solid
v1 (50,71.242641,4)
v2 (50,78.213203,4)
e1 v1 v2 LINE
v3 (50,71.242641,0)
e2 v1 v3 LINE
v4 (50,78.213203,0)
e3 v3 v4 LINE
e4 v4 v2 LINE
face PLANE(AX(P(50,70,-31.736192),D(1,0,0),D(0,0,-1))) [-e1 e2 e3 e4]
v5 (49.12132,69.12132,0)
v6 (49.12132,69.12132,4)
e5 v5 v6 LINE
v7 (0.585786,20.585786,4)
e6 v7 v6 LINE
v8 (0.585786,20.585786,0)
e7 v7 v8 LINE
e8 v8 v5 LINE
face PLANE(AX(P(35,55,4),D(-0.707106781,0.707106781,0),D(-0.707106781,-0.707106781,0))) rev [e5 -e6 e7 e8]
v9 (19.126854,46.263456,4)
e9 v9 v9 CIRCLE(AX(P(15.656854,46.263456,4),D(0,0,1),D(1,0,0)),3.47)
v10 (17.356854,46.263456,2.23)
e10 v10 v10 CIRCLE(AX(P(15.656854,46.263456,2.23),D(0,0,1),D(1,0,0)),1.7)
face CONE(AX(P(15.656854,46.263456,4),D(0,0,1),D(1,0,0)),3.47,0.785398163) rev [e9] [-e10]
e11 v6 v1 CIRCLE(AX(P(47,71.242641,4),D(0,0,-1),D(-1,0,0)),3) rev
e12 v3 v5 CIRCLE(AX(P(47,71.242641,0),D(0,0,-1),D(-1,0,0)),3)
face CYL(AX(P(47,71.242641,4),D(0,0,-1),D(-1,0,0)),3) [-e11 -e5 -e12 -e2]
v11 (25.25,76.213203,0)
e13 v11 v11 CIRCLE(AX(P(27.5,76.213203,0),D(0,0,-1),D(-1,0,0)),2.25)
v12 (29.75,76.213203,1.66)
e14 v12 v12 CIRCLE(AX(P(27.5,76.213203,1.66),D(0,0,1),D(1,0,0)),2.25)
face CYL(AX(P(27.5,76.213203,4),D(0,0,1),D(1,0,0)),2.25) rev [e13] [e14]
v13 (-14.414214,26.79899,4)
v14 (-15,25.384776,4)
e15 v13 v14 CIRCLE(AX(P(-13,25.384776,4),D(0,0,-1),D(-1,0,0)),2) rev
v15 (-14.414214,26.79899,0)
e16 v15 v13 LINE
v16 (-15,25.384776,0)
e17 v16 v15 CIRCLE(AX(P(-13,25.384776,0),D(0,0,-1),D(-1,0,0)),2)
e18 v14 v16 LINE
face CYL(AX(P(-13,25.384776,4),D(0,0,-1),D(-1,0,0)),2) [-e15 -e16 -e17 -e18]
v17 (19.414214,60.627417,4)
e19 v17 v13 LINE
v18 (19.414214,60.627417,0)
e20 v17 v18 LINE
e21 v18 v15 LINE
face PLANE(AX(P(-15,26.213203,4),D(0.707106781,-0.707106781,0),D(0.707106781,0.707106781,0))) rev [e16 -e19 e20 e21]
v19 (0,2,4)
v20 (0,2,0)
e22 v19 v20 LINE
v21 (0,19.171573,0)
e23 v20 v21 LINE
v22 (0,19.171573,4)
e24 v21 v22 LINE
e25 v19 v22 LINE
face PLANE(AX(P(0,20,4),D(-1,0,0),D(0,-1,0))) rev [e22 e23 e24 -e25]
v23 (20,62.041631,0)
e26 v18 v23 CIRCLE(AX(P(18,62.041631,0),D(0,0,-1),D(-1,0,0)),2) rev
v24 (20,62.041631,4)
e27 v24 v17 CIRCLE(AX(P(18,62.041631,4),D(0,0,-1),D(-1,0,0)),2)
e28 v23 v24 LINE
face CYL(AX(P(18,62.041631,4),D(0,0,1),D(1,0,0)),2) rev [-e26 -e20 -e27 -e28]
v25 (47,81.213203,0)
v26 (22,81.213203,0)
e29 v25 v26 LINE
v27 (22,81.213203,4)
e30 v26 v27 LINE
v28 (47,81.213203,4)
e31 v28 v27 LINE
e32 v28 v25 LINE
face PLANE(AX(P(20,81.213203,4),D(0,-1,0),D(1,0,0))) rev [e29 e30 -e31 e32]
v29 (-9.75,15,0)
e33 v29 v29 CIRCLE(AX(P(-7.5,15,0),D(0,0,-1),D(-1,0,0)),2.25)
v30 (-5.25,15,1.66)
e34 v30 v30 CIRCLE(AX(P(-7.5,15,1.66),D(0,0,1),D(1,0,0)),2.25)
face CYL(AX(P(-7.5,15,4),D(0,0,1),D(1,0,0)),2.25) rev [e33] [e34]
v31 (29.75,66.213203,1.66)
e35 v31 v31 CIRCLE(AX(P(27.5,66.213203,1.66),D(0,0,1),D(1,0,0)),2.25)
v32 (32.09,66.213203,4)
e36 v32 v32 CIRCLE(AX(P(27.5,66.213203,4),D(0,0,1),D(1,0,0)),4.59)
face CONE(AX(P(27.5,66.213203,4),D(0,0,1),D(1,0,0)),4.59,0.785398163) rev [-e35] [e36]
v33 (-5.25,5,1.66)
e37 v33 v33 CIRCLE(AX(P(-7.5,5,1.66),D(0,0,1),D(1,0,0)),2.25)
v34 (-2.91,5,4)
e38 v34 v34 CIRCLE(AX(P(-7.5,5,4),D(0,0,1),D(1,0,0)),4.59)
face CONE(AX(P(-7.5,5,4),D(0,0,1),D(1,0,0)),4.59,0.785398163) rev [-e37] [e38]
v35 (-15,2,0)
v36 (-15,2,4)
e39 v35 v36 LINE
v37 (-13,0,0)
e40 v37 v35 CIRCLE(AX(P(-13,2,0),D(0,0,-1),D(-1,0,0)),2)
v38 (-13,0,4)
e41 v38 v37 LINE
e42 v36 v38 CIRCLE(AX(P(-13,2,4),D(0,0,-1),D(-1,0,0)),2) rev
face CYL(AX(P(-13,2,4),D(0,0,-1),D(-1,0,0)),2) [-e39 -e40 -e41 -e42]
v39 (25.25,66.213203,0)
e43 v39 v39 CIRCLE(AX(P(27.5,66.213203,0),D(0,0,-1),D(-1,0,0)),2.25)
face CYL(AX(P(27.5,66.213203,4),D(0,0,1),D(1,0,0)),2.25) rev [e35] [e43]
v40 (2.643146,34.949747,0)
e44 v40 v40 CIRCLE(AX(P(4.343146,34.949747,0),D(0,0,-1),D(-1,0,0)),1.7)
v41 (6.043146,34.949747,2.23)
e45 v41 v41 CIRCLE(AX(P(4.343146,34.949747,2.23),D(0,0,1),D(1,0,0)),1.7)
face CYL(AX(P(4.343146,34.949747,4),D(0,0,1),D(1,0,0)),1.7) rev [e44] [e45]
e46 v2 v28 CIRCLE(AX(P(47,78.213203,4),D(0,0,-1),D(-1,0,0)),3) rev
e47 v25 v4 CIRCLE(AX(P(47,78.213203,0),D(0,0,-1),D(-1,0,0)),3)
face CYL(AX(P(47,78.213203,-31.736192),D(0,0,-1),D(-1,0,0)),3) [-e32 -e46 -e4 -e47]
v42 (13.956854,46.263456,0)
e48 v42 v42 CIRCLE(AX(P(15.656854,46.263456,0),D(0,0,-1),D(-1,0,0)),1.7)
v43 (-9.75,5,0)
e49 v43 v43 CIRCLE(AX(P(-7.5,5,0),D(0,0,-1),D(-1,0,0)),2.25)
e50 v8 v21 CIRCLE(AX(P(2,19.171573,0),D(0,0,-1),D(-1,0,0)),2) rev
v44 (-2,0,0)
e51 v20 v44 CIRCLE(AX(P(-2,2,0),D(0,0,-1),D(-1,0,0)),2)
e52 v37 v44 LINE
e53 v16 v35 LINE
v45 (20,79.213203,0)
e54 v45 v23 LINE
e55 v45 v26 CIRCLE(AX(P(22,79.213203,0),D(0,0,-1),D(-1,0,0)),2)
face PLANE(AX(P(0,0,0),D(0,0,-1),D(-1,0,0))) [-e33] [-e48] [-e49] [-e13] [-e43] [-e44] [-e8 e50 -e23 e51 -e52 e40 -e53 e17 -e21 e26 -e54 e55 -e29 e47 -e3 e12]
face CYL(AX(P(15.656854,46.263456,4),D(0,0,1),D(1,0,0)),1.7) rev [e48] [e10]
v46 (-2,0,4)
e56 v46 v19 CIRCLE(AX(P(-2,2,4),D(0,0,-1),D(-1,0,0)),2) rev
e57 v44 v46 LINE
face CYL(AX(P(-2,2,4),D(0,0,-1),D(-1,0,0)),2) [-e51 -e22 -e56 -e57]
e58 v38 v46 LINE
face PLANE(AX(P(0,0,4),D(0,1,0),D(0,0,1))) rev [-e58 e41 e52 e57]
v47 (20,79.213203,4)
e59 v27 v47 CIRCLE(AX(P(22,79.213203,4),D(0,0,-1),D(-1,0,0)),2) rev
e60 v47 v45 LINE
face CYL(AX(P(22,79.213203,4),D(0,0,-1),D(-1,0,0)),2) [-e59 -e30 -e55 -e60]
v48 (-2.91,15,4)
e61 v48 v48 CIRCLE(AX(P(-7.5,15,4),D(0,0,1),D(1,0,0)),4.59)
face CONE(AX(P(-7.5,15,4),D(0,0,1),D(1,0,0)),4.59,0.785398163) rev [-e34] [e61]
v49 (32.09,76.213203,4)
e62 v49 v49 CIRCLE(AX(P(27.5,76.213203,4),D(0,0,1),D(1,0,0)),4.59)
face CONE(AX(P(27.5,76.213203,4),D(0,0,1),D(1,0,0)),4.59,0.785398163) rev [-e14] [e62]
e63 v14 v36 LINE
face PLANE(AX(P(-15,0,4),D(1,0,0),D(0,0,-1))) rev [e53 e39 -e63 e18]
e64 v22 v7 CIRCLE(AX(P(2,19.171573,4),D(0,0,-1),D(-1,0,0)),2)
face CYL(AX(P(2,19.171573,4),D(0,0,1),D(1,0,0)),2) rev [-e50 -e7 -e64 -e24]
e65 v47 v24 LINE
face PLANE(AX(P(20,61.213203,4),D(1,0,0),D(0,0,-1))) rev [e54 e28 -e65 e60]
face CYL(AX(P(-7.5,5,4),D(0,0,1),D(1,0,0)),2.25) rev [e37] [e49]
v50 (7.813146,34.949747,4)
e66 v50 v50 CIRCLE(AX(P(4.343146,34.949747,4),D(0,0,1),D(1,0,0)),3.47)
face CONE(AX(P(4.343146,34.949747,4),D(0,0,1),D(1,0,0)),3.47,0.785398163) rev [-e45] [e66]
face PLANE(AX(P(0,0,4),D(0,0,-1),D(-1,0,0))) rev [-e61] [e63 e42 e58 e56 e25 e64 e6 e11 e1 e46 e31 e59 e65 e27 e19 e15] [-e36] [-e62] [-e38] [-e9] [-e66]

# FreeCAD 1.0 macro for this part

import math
import FreeCAD as App
import Part
import Sketcher
from FreeCAD import Vector
Q = App.Units.Quantity


def edges_at(feature, points):
    """Names of the edges that pass closest to the given points."""
    edges = feature.Shape.Edges
    near = lambda p: min(range(len(edges)), key=lambda i: edges[i].distToShape(Part.Vertex(*p))[0])
    return sorted({f"Edge{near(p) + 1}" for p in points})


def add_polygon(sketch, points):
    """Adds a closed chain of lines whose ends are joined by coincident constraints."""
    first, n = sketch.GeometryCount, len(points)
    for a, b in zip(points, points[1:] + points[:1]):
        sketch.addGeometry(Part.LineSegment(App.Vector(*a, 0), App.Vector(*b, 0)), False)
    for i in range(n):
        sketch.addConstraint(Sketcher.Constraint("Coincident", first + i, 2, first + (i + 1) % n, 1))

doc = App.newDocument("Part")
body = doc.addObject("PartDesign::Body", "Body")

# Sketch on XY plane
sketch1 = body.newObject("Sketcher::SketchObject", "Sketch")
sketch1.AttachmentSupport = (doc.getObject("XY_Plane"), [""])
sketch1.MapMode = "FlatFace"
add_polygon(sketch1, [(-15, 0), (0, 0), (0, 20), (35, 55), (35, 81), (20, 81), (20, 61), (-15, 26)])  # lines 0-7
sketch1.addConstraint([
    Sketcher.Constraint("Horizontal", 0),
    Sketcher.Constraint("Vertical", 1),
    Sketcher.Constraint("Vertical", 3),
    Sketcher.Constraint("Horizontal", 4),
    Sketcher.Constraint("Vertical", 5),
    Sketcher.Constraint("Vertical", 7),
    Sketcher.Constraint("Coincident", 0, 2, -1, 1),
    Sketcher.Constraint("Parallel", 2, 6),
    Sketcher.Constraint("Equal", 0, 4),
    Sketcher.Constraint("Equal", 1, 5),
    Sketcher.Constraint("DistanceX", 0, 1, 0, 2, 15.0),
    Sketcher.Constraint("DistanceY", 1, 1, 1, 2, 20.0),
    Sketcher.Constraint("Angle", 2, Q("45 deg")),
    Sketcher.Constraint("DistanceX", -1, 1, 2, 2, 35.0),
    Sketcher.Constraint("DistanceY", 3, 1, 3, 2, 26.213203),
])
pad1 = body.newObject("PartDesign::Pad", "Pad")
pad1.Profile = sketch1
pad1.Length = 4
doc.recompute()

fillet = body.newObject("PartDesign::Fillet", "Fillet")
fillet.Base = (pad1, edges_at(pad1, [
    (0, 0, 2),
    (-15, 0, 2),
    (-15, 26.213, 2),
    (20, 61.213, 2),
    (20, 81.213, 2),
    (35, 81.213, 2),
    (35, 55, 2),
    (0, 20, 2),
]))
fillet.Radius = 2

# Sketch on XY plane
sketch2 = body.newObject("Sketcher::SketchObject", "Sketch001")
sketch2.AttachmentSupport = (doc.getObject("XY_Plane"), [""])
sketch2.MapMode = "FlatFace"
sketch2.AttachmentOffset = App.Placement(Vector(0, 0, 4), App.Rotation())
sketch2.addGeometry([
    Part.Circle(Vector(27.5, 76.2, 0), Vector(0, 0, 1), 2.2),
    Part.Circle(Vector(27.5, 66.2, 0), Vector(0, 0, 1), 2.2),
    Part.Circle(Vector(-7.5, 15, 0), Vector(0, 0, 1), 2.2),
    Part.Circle(Vector(-7.5, 5, 0), Vector(0, 0, 1), 2.2),
], False)
sketch2.addConstraint([
    Sketcher.Constraint("Equal", 0, 1),
    Sketcher.Constraint("Equal", 1, 2),
    Sketcher.Constraint("Equal", 2, 3),
    Sketcher.Constraint("Vertical", 0, 3, 1, 3),
    Sketcher.Constraint("Vertical", 2, 3, 3, 3),
    Sketcher.Constraint("Diameter", 0, 4.5),
    Sketcher.Constraint("DistanceY", -1, 1, 2, 3, 15.0),
    Sketcher.Constraint("DistanceY", -1, 1, 3, 3, 5.0),
    Sketcher.Constraint("DistanceY", 1, 3, 0, 3, 10.0),
    Sketcher.Constraint("DistanceX", 2, 3, 1, 3, 35.0),
    Sketcher.Constraint("DistanceX", -1, 1, 0, 3, 27.5),
    Sketcher.Constraint("DistanceY", -1, 1, 0, 3, 76.213203),
])
doc.recompute()
hole = body.newObject("PartDesign::Hole", "Hole")
hole.Profile = sketch2
hole.ThreadType = "None"
hole.Diameter = 4.5
hole.DepthType = "Dimension"
hole.Depth = 24.5
hole.DrillPoint = "Angled"
hole.DrillPointAngle = 118
hole.HoleCutType = "Countersink"
hole.HoleCutDiameter = 9.18
hole.HoleCutCountersinkAngle = 90

# Sketch on XY plane
sketch3 = body.newObject("Sketcher::SketchObject", "Sketch002")
sketch3.AttachmentSupport = (doc.getObject("XY_Plane"), [""])
sketch3.MapMode = "FlatFace"
sketch3.AttachmentOffset = App.Placement(Vector(0, 0, 4), App.Rotation())
sketch3.addGeometry([
    Part.Circle(Vector(4.3, 34.9, 0), Vector(0, 0, 1), 1.7),
    Part.Circle(Vector(15.7, 46.3, 0), Vector(0, 0, 1), 1.7),
], False)
sketch3.addConstraint([
    Sketcher.Constraint("Equal", 0, 1),
    Sketcher.Constraint("Diameter", 0, 3.4),
    Sketcher.Constraint("DistanceX", 0, 3, 1, 3, 11.313708),
    Sketcher.Constraint("DistanceY", 0, 3, 1, 3, 11.313708),
    Sketcher.Constraint("DistanceX", -1, 1, 0, 3, 4.343146),
    Sketcher.Constraint("DistanceY", -1, 1, 0, 3, 34.949747),
])
doc.recompute()
hole2 = body.newObject("PartDesign::Hole", "Hole001")
hole2.Profile = sketch3
hole2.ThreadType = "None"
hole2.Diameter = 3.4
hole2.DepthType = "Dimension"
hole2.Depth = 24.5
hole2.DrillPoint = "Angled"
hole2.DrillPointAngle = 118
hole2.HoleCutType = "Countersink"
hole2.HoleCutDiameter = 6.94
hole2.HoleCutCountersinkAngle = 90

# Sketch on XY plane
sketch4 = body.newObject("Sketcher::SketchObject", "Sketch003")
sketch4.AttachmentSupport = (doc.getObject("XY_Plane"), [""])
sketch4.MapMode = "FlatFace"
sketch4.AttachmentOffset = App.Placement(Vector(0, 0, 4), App.Rotation())
sketch4.addGeometry([
    Part.LineSegment(Vector(34.4, 54.4, 0), Vector(50, 70, 0)),  # 0
    Part.LineSegment(Vector(50, 70, 0), Vector(50, 81.2, 0)),  # 1
    Part.LineSegment(Vector(50, 81.2, 0), Vector(33, 81.2, 0)),  # 2
    Part.ArcOfCircle(Part.Circle(Vector(33, 79.2, 0), Vector(0, 0, 1), 2), math.radians(0), math.radians(90)),  # 3
    Part.LineSegment(Vector(35, 79.2, 0), Vector(35, 55.8, 0)),  # 4
    Part.ArcOfCircle(Part.Circle(Vector(33, 55.8, 0), Vector(0, 0, 1), 2), math.radians(-45), math.radians(0)),  # 5
], False)
sketch4.addConstraint([
    Sketcher.Constraint("Coincident", 0, 2, 1, 1),
    Sketcher.Constraint("Coincident", 1, 2, 2, 1),
    Sketcher.Constraint("Tangent", 2, 2, 3, 2),
    Sketcher.Constraint("Tangent", 3, 1, 4, 1),
    Sketcher.Constraint("Tangent", 4, 2, 5, 2),
    Sketcher.Constraint("Tangent", 5, 1, 0, 1),
    Sketcher.Constraint("Vertical", 1),
    Sketcher.Constraint("Horizontal", 2),
    Sketcher.Constraint("Vertical", 4),
    Sketcher.Constraint("Equal", 3, 5),
    Sketcher.Constraint("Radius", 3, 2.0),
    Sketcher.Constraint("DistanceX", 2, 2, 2, 1, 17.0),
    Sketcher.Constraint("Angle", 0, Q("45 deg")),
    Sketcher.Constraint("DistanceX", -1, 1, 3, 3, 33.0),
    Sketcher.Constraint("DistanceY", -1, 1, 0, 2, 70.0),
    Sketcher.Constraint("DistanceY", 1, 1, 1, 2, 11.213203),
])
pad2 = body.newObject("PartDesign::Pad", "Pad001")
pad2.Profile = sketch4
pad2.Length = 4
pad2.Reversed = True
doc.recompute()

fillet2 = body.newObject("PartDesign::Fillet", "Fillet001")
fillet2.Base = (pad2, edges_at(pad2, [(50, 70, 2), (50, 81.213, 2)]))
fillet2.Radius = 3

doc.recompute()
